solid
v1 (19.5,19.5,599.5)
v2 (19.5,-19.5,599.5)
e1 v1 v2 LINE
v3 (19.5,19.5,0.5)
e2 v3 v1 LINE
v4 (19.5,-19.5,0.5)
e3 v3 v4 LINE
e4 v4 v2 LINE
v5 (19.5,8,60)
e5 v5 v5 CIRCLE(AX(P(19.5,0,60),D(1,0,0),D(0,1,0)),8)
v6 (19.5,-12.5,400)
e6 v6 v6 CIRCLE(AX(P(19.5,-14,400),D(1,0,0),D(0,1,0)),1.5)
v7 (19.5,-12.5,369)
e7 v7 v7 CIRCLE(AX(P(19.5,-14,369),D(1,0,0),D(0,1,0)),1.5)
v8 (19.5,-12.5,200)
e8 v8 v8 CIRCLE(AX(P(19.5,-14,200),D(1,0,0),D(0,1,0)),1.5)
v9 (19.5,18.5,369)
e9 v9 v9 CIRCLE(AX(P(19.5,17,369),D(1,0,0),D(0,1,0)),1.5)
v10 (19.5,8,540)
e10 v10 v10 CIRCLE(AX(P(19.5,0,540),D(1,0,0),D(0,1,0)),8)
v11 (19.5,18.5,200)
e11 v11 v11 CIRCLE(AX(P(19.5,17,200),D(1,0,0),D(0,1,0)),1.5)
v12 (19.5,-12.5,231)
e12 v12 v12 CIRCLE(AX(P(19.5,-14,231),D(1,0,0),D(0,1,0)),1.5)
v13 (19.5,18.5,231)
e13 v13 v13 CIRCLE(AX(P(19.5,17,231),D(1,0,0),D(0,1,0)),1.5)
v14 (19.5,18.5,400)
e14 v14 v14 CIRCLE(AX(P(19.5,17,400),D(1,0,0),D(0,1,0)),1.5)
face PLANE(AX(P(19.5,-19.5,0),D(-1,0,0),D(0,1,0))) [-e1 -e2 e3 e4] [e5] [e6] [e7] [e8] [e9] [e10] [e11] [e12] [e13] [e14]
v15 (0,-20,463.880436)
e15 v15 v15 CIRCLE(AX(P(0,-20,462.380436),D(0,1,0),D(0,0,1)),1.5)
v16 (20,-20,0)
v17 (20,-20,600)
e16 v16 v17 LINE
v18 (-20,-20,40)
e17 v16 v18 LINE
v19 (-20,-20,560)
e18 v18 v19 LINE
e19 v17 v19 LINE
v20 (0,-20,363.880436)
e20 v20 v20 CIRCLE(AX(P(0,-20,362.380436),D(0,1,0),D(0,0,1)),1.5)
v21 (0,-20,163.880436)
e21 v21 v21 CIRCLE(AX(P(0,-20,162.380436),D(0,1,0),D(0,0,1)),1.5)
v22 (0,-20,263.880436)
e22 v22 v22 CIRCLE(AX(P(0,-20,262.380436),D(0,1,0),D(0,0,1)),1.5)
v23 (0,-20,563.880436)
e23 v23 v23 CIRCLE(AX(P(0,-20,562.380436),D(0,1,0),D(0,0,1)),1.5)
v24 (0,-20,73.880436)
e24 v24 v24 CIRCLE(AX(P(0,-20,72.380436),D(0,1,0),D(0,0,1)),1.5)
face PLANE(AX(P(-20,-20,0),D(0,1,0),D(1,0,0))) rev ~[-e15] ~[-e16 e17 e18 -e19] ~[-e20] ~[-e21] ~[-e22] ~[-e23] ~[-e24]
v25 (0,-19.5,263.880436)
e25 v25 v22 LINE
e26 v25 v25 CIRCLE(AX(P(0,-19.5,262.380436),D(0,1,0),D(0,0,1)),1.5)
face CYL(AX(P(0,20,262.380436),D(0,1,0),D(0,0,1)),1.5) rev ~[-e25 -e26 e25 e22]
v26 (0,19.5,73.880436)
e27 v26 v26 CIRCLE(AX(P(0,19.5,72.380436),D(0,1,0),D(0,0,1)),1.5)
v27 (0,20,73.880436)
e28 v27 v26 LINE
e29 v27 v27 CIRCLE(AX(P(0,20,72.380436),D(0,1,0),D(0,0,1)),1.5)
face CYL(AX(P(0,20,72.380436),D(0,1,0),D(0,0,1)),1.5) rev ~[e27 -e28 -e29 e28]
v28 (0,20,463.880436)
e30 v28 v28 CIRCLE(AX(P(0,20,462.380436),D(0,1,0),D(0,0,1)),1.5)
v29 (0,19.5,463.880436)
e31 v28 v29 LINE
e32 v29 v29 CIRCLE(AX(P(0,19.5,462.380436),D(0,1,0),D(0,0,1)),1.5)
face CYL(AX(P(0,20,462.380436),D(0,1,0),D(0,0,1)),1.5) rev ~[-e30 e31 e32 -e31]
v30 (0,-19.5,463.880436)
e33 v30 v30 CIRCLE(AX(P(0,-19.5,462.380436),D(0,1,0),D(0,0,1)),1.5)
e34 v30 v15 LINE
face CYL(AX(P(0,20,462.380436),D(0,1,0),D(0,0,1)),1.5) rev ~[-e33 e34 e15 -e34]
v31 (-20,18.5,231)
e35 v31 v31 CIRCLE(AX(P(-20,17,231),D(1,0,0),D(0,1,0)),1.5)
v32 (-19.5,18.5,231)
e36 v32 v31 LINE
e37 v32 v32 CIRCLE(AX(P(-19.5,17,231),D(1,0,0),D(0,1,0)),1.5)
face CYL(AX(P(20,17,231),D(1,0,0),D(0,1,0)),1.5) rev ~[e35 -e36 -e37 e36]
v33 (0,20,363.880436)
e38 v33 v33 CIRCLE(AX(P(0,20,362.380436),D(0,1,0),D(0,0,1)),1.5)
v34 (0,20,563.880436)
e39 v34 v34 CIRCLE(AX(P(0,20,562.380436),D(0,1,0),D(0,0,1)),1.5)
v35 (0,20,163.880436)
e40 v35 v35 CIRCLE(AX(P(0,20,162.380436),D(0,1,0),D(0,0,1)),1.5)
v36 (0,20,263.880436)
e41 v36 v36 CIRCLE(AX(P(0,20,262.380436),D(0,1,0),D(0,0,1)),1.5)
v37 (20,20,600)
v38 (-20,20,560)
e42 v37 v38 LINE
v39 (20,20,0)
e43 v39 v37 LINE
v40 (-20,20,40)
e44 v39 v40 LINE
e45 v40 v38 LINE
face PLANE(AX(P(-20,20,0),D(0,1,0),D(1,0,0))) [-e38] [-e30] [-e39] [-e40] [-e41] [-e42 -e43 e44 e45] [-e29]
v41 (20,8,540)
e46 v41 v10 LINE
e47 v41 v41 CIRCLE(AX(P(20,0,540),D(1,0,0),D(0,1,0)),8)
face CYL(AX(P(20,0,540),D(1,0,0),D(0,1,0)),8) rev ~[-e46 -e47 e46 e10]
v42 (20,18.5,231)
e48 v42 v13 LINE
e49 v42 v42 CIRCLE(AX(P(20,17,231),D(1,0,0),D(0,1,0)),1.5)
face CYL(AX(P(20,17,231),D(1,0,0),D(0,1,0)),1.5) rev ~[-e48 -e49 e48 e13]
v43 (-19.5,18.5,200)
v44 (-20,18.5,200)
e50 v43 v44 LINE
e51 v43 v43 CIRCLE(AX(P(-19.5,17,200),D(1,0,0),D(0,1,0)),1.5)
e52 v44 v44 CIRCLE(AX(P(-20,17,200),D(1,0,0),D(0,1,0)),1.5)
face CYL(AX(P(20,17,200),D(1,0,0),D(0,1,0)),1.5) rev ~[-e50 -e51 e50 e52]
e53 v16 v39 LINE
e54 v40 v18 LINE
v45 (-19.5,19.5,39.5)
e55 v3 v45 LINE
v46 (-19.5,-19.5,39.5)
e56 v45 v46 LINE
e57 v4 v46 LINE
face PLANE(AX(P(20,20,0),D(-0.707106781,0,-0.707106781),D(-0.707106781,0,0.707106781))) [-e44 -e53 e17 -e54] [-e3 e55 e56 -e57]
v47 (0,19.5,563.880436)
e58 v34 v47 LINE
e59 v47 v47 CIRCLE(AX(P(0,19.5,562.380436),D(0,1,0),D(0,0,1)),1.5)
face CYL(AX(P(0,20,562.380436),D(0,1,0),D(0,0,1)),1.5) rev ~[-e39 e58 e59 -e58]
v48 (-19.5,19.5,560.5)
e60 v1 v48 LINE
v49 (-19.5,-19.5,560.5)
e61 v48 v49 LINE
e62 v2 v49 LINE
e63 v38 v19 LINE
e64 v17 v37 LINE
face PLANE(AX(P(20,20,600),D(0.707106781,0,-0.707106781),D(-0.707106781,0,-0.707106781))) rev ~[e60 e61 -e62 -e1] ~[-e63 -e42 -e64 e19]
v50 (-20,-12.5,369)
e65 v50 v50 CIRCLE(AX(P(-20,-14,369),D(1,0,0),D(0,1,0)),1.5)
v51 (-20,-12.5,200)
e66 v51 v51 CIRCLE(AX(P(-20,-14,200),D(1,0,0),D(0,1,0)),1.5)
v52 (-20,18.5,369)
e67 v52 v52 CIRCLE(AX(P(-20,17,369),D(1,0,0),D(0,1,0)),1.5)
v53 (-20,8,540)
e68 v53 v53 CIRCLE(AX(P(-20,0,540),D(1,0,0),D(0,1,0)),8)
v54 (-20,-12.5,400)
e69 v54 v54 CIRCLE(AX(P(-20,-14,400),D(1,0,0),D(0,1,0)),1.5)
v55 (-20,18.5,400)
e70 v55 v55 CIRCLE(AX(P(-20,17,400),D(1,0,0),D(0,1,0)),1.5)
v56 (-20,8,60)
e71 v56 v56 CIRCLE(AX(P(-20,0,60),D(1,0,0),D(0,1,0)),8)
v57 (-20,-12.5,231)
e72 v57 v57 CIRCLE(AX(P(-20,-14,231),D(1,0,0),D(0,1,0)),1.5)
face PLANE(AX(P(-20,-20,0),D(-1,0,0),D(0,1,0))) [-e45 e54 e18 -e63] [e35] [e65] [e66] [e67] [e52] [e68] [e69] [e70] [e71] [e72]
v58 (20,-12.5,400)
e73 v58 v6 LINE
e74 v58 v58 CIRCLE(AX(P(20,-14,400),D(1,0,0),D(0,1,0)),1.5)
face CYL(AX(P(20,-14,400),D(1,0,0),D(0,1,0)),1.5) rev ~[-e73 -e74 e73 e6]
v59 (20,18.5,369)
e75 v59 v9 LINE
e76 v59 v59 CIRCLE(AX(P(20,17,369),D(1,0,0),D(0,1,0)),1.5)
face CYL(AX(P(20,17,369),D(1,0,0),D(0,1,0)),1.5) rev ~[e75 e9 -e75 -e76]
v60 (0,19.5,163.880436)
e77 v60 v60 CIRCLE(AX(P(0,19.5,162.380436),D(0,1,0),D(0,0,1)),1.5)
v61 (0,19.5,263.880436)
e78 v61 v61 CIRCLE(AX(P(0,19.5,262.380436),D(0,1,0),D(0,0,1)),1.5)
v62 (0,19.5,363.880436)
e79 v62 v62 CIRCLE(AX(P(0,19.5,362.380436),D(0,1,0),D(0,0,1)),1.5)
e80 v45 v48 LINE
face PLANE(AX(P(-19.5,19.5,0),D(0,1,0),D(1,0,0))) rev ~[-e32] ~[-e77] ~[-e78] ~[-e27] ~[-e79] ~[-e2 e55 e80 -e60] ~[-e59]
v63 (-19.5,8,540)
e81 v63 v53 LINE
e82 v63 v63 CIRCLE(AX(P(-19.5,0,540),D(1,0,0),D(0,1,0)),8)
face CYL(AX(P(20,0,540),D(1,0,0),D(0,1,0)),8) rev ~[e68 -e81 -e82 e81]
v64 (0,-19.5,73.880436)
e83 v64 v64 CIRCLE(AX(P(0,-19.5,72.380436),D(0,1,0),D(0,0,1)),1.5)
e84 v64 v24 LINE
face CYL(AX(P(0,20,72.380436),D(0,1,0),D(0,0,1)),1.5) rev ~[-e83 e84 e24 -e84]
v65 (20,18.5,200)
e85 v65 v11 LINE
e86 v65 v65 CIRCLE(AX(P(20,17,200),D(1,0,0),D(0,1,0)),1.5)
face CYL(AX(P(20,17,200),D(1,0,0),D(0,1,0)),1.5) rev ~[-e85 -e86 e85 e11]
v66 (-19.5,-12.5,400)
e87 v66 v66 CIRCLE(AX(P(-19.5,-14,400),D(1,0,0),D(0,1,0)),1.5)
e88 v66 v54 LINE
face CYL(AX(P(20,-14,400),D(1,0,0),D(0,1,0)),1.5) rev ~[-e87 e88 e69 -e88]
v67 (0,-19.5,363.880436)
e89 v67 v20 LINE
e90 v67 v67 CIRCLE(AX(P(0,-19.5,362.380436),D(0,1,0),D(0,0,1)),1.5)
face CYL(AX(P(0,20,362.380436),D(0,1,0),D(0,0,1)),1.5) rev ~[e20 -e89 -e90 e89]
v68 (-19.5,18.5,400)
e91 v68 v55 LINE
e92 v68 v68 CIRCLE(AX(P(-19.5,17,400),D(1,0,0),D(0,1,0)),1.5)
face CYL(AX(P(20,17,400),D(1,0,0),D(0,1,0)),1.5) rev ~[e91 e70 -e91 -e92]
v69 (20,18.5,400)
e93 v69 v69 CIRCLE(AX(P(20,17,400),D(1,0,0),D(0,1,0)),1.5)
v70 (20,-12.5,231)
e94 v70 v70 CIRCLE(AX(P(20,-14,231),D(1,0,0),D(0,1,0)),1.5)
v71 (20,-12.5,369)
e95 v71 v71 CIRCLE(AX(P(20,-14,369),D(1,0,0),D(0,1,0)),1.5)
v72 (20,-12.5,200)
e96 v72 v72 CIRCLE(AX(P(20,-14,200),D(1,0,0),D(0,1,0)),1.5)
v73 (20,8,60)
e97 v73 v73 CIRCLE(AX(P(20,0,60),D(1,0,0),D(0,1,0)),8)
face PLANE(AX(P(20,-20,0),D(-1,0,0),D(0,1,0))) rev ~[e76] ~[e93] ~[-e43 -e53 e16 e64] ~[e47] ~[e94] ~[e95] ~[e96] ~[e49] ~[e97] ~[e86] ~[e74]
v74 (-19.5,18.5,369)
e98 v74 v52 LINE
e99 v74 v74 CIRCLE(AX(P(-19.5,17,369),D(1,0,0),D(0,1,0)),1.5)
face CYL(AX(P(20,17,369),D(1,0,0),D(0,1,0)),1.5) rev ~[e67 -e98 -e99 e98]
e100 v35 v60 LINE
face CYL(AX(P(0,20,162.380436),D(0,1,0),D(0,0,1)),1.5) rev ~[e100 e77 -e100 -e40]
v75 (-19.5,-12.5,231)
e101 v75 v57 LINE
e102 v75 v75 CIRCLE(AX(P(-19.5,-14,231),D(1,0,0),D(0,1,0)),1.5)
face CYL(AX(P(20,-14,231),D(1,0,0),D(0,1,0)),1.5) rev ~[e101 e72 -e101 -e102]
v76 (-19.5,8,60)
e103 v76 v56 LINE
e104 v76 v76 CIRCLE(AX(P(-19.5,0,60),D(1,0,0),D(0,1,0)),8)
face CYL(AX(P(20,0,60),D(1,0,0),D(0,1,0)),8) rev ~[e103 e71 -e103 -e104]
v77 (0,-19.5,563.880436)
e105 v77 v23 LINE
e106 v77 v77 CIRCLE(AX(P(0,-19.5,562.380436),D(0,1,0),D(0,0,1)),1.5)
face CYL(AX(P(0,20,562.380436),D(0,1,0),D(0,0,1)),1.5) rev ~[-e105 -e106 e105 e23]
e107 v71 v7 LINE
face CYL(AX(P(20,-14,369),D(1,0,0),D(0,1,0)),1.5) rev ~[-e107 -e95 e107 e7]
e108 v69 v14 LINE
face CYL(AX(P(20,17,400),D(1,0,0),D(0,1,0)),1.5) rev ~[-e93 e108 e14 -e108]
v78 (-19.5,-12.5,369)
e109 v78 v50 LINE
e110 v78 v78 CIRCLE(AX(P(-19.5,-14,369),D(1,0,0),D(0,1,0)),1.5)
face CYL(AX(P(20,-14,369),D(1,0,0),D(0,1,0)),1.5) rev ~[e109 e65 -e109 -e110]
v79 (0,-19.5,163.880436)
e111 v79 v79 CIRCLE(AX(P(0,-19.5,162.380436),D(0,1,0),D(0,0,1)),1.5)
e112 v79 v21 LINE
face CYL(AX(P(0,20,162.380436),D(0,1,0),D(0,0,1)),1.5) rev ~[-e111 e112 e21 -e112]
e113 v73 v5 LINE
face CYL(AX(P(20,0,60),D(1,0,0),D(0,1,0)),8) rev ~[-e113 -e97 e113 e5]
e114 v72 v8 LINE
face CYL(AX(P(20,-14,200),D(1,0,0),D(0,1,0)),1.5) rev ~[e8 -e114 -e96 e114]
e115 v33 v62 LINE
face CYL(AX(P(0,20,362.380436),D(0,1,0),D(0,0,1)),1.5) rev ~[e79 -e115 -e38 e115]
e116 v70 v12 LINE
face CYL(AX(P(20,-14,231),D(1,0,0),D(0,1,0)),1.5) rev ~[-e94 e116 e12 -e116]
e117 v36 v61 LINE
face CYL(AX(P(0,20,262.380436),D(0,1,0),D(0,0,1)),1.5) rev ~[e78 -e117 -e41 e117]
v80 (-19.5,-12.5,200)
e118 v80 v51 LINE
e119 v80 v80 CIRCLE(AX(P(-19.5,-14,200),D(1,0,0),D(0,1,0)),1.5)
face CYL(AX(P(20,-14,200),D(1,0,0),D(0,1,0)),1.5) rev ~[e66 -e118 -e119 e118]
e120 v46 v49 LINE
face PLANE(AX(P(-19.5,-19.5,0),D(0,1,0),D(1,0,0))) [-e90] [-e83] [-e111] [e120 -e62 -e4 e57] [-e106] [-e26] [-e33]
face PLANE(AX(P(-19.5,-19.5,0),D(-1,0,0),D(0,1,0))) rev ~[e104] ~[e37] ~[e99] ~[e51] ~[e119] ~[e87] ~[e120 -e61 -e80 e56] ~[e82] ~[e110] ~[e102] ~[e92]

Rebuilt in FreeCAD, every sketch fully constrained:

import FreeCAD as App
import Part
import Sketcher

V = App.Vector
Q = App.Units.Quantity


def add_polygon(sketch, points):
    """Adds a closed chain of lines whose ends are joined by coincident constraints."""
    first, n = sketch.GeometryCount, len(points)
    for a, b in zip(points, points[1:] + points[:1]):
        sketch.addGeometry(Part.LineSegment(App.Vector(*a, 0), App.Vector(*b, 0)), False)
    for i in range(n):
        sketch.addConstraint(Sketcher.Constraint("Coincident", first + i, 2, first + (i + 1) % n, 1))

doc = App.newDocument("Part")
params = doc.addObject("Spreadsheet::Sheet", "Params")
for row, (alias, value) in enumerate([
    ("sketch1_width", "40 mm"),
    ("sketch1_width2", "39 mm"),
    ("pad1_length", "600 mm"),
    ("sketch2_width", "40 mm"),
    ("pocket1_length", "600 mm"),
    ("sketch3_width", "40 mm"),
    ("pocket2_length", "600 mm"),
    ("sketch4_diameter", "16 mm"),
    ("pocket3_length", "550 mm"),
    ("sketch5_diameter", "16 mm"),
    ("pocket4_length", "550 mm"),
    ("sketch6_diameter", "3 mm"),
    ("pocket5_length", "550 mm"),
    ("sketch7_diameter", "3 mm"),
    ("pocket6_length", "550 mm"),
], start=1):
    params.set(f"A{row}", alias)
    params.set(f"B{row}", "=" + value)
    params.setAlias(f"B{row}", alias)

body = doc.addObject("PartDesign::Body", "Body")

# Sketch on XY plane
sketch1 = body.newObject("Sketcher::SketchObject", "Sketch")
sketch1.AttachmentSupport = (doc.getObject("XY_Plane"), [""])
sketch1.MapMode = "FlatFace"
add_polygon(sketch1, [(-20, 20), (-20, -20), (20, -20), (20, 20)])  # lines 0-3
add_polygon(sketch1, [(20, -20), (-20, -20), (-20, 20), (20, 20)])  # lines 4-7
sketch1.addConstraint([
    Sketcher.Constraint("Vertical", 0),
    Sketcher.Constraint("Horizontal", 1),
    Sketcher.Constraint("Vertical", 2),
    Sketcher.Constraint("Horizontal", 3),
    Sketcher.Constraint("Horizontal", 4),
    Sketcher.Constraint("Vertical", 5),
    Sketcher.Constraint("Horizontal", 6),
    Sketcher.Constraint("Vertical", 7),
    Sketcher.Constraint("Symmetric", 0, 2, 2, 2, -1, 1),
    Sketcher.Constraint("Symmetric", 4, 2, 6, 2, -1, 1),
    Sketcher.Constraint("Equal", 3, 0),
    Sketcher.Constraint("Equal", 6, 5),
    Sketcher.Constraint("DistanceX", 1, 1, 1, 2, Q("40 mm")),
    Sketcher.Constraint("DistanceX", 4, 2, 4, 1, Q("39 mm")),
])
sketch1.setExpression("Constraints[20]", "Params.sketch1_width")
sketch1.setExpression("Constraints[21]", "Params.sketch1_width2")
pad1 = body.newObject("PartDesign::Pad", "Pad")
pad1.Profile = sketch1
pad1.setExpression("Length", "Params.pad1_length")

# Sketch on XZ plane
sketch2 = body.newObject("Sketcher::SketchObject", "Sketch001")
sketch2.AttachmentSupport = (doc.getObject("XZ_Plane"), [""])
sketch2.MapMode = "FlatFace"
sketch2.AttachmentOffset = App.Placement(V(0, 0, -20), App.Rotation())
add_polygon(sketch2, [(20, 600), (-20, 560), (-20, 600)])  # lines 0-2
sketch2.addConstraint([
    Sketcher.Constraint("Vertical", 1),
    Sketcher.Constraint("Horizontal", 2),
    Sketcher.Constraint("Equal", 2, 1),
    Sketcher.Constraint("DistanceX", 2, 1, 2, 2, Q("40 mm")),
    Sketcher.Constraint("DistanceX", 0, 2, -1, 1, Q("20 mm")),
    Sketcher.Constraint("DistanceY", -1, 1, 0, 2, Q("560 mm")),
])
sketch2.setExpression("Constraints[6]", "Params.sketch2_width")
pocket1 = body.newObject("PartDesign::Pocket", "Pocket")
pocket1.Profile = sketch2
pocket1.setExpression("Length", "Params.pocket1_length")
pocket1.Reversed = True

# Sketch on XZ plane
sketch3 = body.newObject("Sketcher::SketchObject", "Sketch002")
sketch3.AttachmentSupport = (doc.getObject("XZ_Plane"), [""])
sketch3.MapMode = "FlatFace"
sketch3.AttachmentOffset = App.Placement(V(0, 0, -20), App.Rotation())
add_polygon(sketch3, [(-20, 40), (20, 0), (-20, 0)])  # lines 0-2
sketch3.addConstraint([
    Sketcher.Constraint("Horizontal", 1),
    Sketcher.Constraint("Vertical", 2),
    Sketcher.Constraint("Symmetric", 0, 2, 1, 2, -1, 1),
    Sketcher.Constraint("Equal", 1, 2),
    Sketcher.Constraint("DistanceX", 1, 2, 1, 1, Q("40 mm")),
])
sketch3.setExpression("Constraints[7]", "Params.sketch3_width")
pocket2 = body.newObject("PartDesign::Pocket", "Pocket001")
pocket2.Profile = sketch3
pocket2.setExpression("Length", "Params.pocket2_length")
pocket2.Reversed = True

# Sketch on YZ plane
sketch4 = body.newObject("Sketcher::SketchObject", "Sketch003")
sketch4.AttachmentSupport = (doc.getObject("YZ_Plane"), [""])
sketch4.MapMode = "FlatFace"
sketch4.AttachmentOffset = App.Placement(V(0, 0, 20), App.Rotation())
sketch4.addGeometry(Part.Circle(V(0, 540, 0), V(0, 0, 1), 8), False)
sketch4.addConstraint([
    Sketcher.Constraint("PointOnObject", 0, 3, -2),
    Sketcher.Constraint("Diameter", 0, Q("16 mm")),
    Sketcher.Constraint("DistanceY", -1, 1, 0, 3, Q("540 mm")),
])
sketch4.setExpression("Constraints[1]", "Params.sketch4_diameter")
pocket3 = body.newObject("PartDesign::Pocket", "Pocket002")
pocket3.Profile = sketch4
pocket3.setExpression("Length", "Params.pocket3_length")

# Sketch on YZ plane
sketch5 = body.newObject("Sketcher::SketchObject", "Sketch004")
sketch5.AttachmentSupport = (doc.getObject("YZ_Plane"), [""])
sketch5.MapMode = "FlatFace"
sketch5.AttachmentOffset = App.Placement(V(0, 0, 20), App.Rotation())
sketch5.addGeometry(Part.Circle(V(0, 60, 0), V(0, 0, 1), 8), False)
sketch5.addConstraint([
    Sketcher.Constraint("PointOnObject", 0, 3, -2),
    Sketcher.Constraint("Diameter", 0, Q("16 mm")),
    Sketcher.Constraint("DistanceY", -1, 1, 0, 3, Q("60 mm")),
])
sketch5.setExpression("Constraints[1]", "Params.sketch5_diameter")
pocket4 = body.newObject("PartDesign::Pocket", "Pocket003")
pocket4.Profile = sketch5
pocket4.setExpression("Length", "Params.pocket4_length")

# Sketch on XZ plane
sketch6 = body.newObject("Sketcher::SketchObject", "Sketch005")
sketch6.AttachmentSupport = (doc.getObject("XZ_Plane"), [""])
sketch6.MapMode = "FlatFace"
sketch6.AttachmentOffset = App.Placement(V(0, 0, -20), App.Rotation())
sketch6.addGeometry([
    Part.Circle(V(0, 562.4, 0), V(0, 0, 1), 1.5),  # 0
    Part.Circle(V(0, 462.4, 0), V(0, 0, 1), 1.5),  # 1
    Part.Circle(V(0, 362.4, 0), V(0, 0, 1), 1.5),  # 2
    Part.Circle(V(0, 262.4, 0), V(0, 0, 1), 1.5),  # 3
    Part.Circle(V(0, 162.4, 0), V(0, 0, 1), 1.5),  # 4
    Part.Circle(V(0, 72.4, 0), V(0, 0, 1), 1.5),  # 5
], False)
sketch6.addConstraint([
    Sketcher.Constraint("Equal", 0, 1),
    Sketcher.Constraint("Equal", 1, 2),
    Sketcher.Constraint("Equal", 2, 3),
    Sketcher.Constraint("Equal", 3, 4),
    Sketcher.Constraint("Equal", 4, 5),
    Sketcher.Constraint("PointOnObject", 0, 3, -2),
    Sketcher.Constraint("PointOnObject", 1, 3, -2),
    Sketcher.Constraint("PointOnObject", 2, 3, -2),
    Sketcher.Constraint("PointOnObject", 3, 3, -2),
    Sketcher.Constraint("PointOnObject", 4, 3, -2),
    Sketcher.Constraint("PointOnObject", 5, 3, -2),
    Sketcher.Constraint("Diameter", 0, Q("3 mm")),
    Sketcher.Constraint("DistanceY", 1, 3, 0, 3, Q("100 mm")),
    Sketcher.Constraint("DistanceY", 2, 3, 1, 3, Q("100 mm")),
    Sketcher.Constraint("DistanceY", 3, 3, 2, 3, Q("100 mm")),
    Sketcher.Constraint("DistanceY", 4, 3, 3, 3, Q("100 mm")),
    Sketcher.Constraint("DistanceY", 5, 3, 4, 3, Q("90 mm")),
    Sketcher.Constraint("DistanceY", -1, 1, 0, 3, Q("562.380436 mm")),
])
sketch6.setExpression("Constraints[11]", "Params.sketch6_diameter")
pocket5 = body.newObject("PartDesign::Pocket", "Pocket004")
pocket5.Profile = sketch6
pocket5.setExpression("Length", "Params.pocket5_length")
pocket5.Reversed = True

# Sketch on YZ plane
sketch7 = body.newObject("Sketcher::SketchObject", "Sketch006")
sketch7.AttachmentSupport = (doc.getObject("YZ_Plane"), [""])
sketch7.MapMode = "FlatFace"
sketch7.AttachmentOffset = App.Placement(V(0, 0, 20), App.Rotation())
sketch7.addGeometry([
    Part.Circle(V(17, 200, 0), V(0, 0, 1), 1.5),  # 0
    Part.Circle(V(17, 231, 0), V(0, 0, 1), 1.5),  # 1
    Part.Circle(V(-14, 200, 0), V(0, 0, 1), 1.5),  # 2
    Part.Circle(V(-14, 231, 0), V(0, 0, 1), 1.5),  # 3
    Part.Circle(V(17, 369, 0), V(0, 0, 1), 1.5),  # 4
    Part.Circle(V(17, 400, 0), V(0, 0, 1), 1.5),  # 5
    Part.Circle(V(-14, 369, 0), V(0, 0, 1), 1.5),  # 6
    Part.Circle(V(-14, 400, 0), V(0, 0, 1), 1.5),  # 7
], False)
sketch7.addConstraint([
    Sketcher.Constraint("Equal", 0, 1),
    Sketcher.Constraint("Equal", 1, 2),
    Sketcher.Constraint("Equal", 2, 3),
    Sketcher.Constraint("Equal", 3, 4),
    Sketcher.Constraint("Equal", 4, 5),
    Sketcher.Constraint("Equal", 5, 6),
    Sketcher.Constraint("Equal", 6, 7),
    Sketcher.Constraint("Horizontal", 0, 3, 2, 3),
    Sketcher.Constraint("Horizontal", 1, 3, 3, 3),
    Sketcher.Constraint("Horizontal", 4, 3, 6, 3),
    Sketcher.Constraint("Horizontal", 5, 3, 7, 3),
    Sketcher.Constraint("Vertical", 0, 3, 1, 3),
    Sketcher.Constraint("Vertical", 2, 3, 3, 3),
    Sketcher.Constraint("Vertical", 1, 3, 4, 3),
    Sketcher.Constraint("Vertical", 4, 3, 5, 3),
    Sketcher.Constraint("Vertical", 3, 3, 6, 3),
    Sketcher.Constraint("Vertical", 6, 3, 7, 3),
    Sketcher.Constraint("Diameter", 0, Q("3 mm")),
    Sketcher.Constraint("DistanceX", -1, 1, 0, 3, Q("17 mm")),
    Sketcher.Constraint("DistanceY", -1, 1, 0, 3, Q("200 mm")),
    Sketcher.Constraint("DistanceY", -1, 1, 1, 3, Q("231 mm")),
    Sketcher.Constraint("DistanceX", 2, 3, -1, 1, Q("14 mm")),
    Sketcher.Constraint("DistanceY", -1, 1, 4, 3, Q("369 mm")),
    Sketcher.Constraint("DistanceY", -1, 1, 5, 3, Q("400 mm")),
])
sketch7.setExpression("Constraints[17]", "Params.sketch7_diameter")
pocket6 = body.newObject("PartDesign::Pocket", "Pocket005")
pocket6.Profile = sketch7
pocket6.setExpression("Length", "Params.pocket6_length")

doc.recompute()
